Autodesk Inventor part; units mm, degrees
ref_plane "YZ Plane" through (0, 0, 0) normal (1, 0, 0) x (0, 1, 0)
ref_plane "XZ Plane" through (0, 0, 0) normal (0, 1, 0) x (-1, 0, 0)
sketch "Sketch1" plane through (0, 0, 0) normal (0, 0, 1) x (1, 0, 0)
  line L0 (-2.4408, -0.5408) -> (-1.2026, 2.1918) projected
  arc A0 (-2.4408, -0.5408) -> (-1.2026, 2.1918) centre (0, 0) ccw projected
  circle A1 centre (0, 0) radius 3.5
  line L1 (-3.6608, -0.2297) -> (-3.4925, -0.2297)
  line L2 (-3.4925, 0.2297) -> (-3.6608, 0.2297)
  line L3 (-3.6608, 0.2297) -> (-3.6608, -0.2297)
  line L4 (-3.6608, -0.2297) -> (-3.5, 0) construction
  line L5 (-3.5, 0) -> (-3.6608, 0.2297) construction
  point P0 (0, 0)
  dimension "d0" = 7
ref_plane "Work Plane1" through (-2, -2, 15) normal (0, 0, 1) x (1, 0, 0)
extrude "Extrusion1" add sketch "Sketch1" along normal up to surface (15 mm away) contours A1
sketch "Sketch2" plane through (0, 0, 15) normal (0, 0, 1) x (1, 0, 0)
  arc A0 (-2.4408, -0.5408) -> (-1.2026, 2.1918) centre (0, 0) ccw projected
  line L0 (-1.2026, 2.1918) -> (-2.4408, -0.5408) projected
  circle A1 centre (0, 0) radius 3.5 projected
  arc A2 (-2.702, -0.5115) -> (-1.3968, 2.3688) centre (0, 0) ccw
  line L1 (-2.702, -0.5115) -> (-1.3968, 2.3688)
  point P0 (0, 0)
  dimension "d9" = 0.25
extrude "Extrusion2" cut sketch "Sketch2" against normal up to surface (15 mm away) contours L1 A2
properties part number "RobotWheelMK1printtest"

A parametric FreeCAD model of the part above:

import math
import FreeCAD as App
import Part
import Sketcher
from FreeCAD import Vector
Q = App.Units.Quantity

doc = App.newDocument("Part")
body = doc.addObject("PartDesign::Body", "Body")

# Sketch on XY plane
sketch1 = body.newObject("Sketcher::SketchObject", "Sketch")
sketch1.AttachmentSupport = (doc.getObject("XY_Plane"), [""])
sketch1.MapMode = "FlatFace"
sketch1.addGeometry(Part.Circle(Vector(0, 0, 0), Vector(0, 0, 1), 3.5), False)
sketch1.addGeometry(Part.ArcOfCircle(Part.Circle(Vector(0, 0, 0), Vector(0, 0, 1), 2.499994), math.radians(-167.506988), math.radians(118.75276)), False)
sketch1.addGeometry(Part.LineSegment(Vector(-2.4408, -0.5408, 0), Vector(-1.2026, 2.1918, 0)), False)
sketch1.addConstraint(Sketcher.Constraint("Coincident", 1, 1, 2, 1))
sketch1.addConstraint(Sketcher.Constraint("Coincident", 2, 2, 1, 2))
sketch1.addConstraint(Sketcher.Constraint("Coincident", 0, 3, -1, 1))
sketch1.addConstraint(Sketcher.Constraint("Coincident", 1, 3, -1, 1))
sketch1.addConstraint(Sketcher.Constraint("Diameter", 0, Q("7 mm")))
sketch1.addConstraint(Sketcher.Constraint("Radius", 1, Q("2.5 mm")))
sketch1.addConstraint(Sketcher.Constraint("Distance", 2, Q("3 mm")))
sketch1.addConstraint(Sketcher.Constraint("DistanceX", 1, 1, -1, 1, Q("2.4408 mm")))
pad1 = body.newObject("PartDesign::Pad", "Pad")
pad1.Profile = sketch1
pad1.Length = 15

# Sketch on XY plane
sketch2 = body.newObject("Sketcher::SketchObject", "Sketch001")
sketch2.AttachmentSupport = (doc.getObject("XY_Plane"), [""])
sketch2.MapMode = "FlatFace"
sketch2.AttachmentOffset = App.Placement(Vector(0, 0, 15), App.Rotation())
sketch2.addGeometry(Part.LineSegment(Vector(-1.3968, 2.3688, 0), Vector(-2.702, -0.5115, 0)), False)
sketch2.addGeometry(Part.ArcOfCircle(Part.Circle(Vector(0, 0, 0), Vector(0, 0, 1), 2.749988), math.radians(-169.280514), math.radians(120.526393)), False)
sketch2.addGeometry(Part.ArcOfCircle(Part.Circle(Vector(0, 0, 0), Vector(0, 0, 1), 2.499994), math.radians(-167.506988), math.radians(118.75276)), False)
sketch2.addGeometry(Part.LineSegment(Vector(-2.4408, -0.5408, 0), Vector(-1.2026, 2.1918, 0)), False)
sketch2.addConstraint(Sketcher.Constraint("Coincident", 0, 1, 1, 2))
sketch2.addConstraint(Sketcher.Constraint("Coincident", 1, 1, 0, 2))
sketch2.addConstraint(Sketcher.Constraint("Coincident", 2, 1, 3, 1))
sketch2.addConstraint(Sketcher.Constraint("Coincident", 3, 2, 2, 2))
sketch2.addConstraint(Sketcher.Constraint("Coincident", 1, 3, -1, 1))
sketch2.addConstraint(Sketcher.Constraint("Coincident", 2, 3, -1, 1))
sketch2.addConstraint(Sketcher.Constraint("Parallel", 0, 3))
sketch2.addConstraint(Sketcher.Constraint("Radius", 2, Q("2.5 mm")))
sketch2.addConstraint(Sketcher.Constraint("Radius", 1, Q("2.75 mm")))
sketch2.addConstraint(Sketcher.Constraint("Distance", 3, Q("3 mm")))
sketch2.addConstraint(Sketcher.Constraint("DistanceX", 1, 1, -1, 1, Q("2.702 mm")))
sketch2.addConstraint(Sketcher.Constraint("DistanceX", 2, 1, 0, 1, Q("1.044 mm")))
pocket1 = body.newObject("PartDesign::Pocket", "Pocket")
pocket1.Profile = sketch2
pocket1.Length = 15

doc.recompute()
